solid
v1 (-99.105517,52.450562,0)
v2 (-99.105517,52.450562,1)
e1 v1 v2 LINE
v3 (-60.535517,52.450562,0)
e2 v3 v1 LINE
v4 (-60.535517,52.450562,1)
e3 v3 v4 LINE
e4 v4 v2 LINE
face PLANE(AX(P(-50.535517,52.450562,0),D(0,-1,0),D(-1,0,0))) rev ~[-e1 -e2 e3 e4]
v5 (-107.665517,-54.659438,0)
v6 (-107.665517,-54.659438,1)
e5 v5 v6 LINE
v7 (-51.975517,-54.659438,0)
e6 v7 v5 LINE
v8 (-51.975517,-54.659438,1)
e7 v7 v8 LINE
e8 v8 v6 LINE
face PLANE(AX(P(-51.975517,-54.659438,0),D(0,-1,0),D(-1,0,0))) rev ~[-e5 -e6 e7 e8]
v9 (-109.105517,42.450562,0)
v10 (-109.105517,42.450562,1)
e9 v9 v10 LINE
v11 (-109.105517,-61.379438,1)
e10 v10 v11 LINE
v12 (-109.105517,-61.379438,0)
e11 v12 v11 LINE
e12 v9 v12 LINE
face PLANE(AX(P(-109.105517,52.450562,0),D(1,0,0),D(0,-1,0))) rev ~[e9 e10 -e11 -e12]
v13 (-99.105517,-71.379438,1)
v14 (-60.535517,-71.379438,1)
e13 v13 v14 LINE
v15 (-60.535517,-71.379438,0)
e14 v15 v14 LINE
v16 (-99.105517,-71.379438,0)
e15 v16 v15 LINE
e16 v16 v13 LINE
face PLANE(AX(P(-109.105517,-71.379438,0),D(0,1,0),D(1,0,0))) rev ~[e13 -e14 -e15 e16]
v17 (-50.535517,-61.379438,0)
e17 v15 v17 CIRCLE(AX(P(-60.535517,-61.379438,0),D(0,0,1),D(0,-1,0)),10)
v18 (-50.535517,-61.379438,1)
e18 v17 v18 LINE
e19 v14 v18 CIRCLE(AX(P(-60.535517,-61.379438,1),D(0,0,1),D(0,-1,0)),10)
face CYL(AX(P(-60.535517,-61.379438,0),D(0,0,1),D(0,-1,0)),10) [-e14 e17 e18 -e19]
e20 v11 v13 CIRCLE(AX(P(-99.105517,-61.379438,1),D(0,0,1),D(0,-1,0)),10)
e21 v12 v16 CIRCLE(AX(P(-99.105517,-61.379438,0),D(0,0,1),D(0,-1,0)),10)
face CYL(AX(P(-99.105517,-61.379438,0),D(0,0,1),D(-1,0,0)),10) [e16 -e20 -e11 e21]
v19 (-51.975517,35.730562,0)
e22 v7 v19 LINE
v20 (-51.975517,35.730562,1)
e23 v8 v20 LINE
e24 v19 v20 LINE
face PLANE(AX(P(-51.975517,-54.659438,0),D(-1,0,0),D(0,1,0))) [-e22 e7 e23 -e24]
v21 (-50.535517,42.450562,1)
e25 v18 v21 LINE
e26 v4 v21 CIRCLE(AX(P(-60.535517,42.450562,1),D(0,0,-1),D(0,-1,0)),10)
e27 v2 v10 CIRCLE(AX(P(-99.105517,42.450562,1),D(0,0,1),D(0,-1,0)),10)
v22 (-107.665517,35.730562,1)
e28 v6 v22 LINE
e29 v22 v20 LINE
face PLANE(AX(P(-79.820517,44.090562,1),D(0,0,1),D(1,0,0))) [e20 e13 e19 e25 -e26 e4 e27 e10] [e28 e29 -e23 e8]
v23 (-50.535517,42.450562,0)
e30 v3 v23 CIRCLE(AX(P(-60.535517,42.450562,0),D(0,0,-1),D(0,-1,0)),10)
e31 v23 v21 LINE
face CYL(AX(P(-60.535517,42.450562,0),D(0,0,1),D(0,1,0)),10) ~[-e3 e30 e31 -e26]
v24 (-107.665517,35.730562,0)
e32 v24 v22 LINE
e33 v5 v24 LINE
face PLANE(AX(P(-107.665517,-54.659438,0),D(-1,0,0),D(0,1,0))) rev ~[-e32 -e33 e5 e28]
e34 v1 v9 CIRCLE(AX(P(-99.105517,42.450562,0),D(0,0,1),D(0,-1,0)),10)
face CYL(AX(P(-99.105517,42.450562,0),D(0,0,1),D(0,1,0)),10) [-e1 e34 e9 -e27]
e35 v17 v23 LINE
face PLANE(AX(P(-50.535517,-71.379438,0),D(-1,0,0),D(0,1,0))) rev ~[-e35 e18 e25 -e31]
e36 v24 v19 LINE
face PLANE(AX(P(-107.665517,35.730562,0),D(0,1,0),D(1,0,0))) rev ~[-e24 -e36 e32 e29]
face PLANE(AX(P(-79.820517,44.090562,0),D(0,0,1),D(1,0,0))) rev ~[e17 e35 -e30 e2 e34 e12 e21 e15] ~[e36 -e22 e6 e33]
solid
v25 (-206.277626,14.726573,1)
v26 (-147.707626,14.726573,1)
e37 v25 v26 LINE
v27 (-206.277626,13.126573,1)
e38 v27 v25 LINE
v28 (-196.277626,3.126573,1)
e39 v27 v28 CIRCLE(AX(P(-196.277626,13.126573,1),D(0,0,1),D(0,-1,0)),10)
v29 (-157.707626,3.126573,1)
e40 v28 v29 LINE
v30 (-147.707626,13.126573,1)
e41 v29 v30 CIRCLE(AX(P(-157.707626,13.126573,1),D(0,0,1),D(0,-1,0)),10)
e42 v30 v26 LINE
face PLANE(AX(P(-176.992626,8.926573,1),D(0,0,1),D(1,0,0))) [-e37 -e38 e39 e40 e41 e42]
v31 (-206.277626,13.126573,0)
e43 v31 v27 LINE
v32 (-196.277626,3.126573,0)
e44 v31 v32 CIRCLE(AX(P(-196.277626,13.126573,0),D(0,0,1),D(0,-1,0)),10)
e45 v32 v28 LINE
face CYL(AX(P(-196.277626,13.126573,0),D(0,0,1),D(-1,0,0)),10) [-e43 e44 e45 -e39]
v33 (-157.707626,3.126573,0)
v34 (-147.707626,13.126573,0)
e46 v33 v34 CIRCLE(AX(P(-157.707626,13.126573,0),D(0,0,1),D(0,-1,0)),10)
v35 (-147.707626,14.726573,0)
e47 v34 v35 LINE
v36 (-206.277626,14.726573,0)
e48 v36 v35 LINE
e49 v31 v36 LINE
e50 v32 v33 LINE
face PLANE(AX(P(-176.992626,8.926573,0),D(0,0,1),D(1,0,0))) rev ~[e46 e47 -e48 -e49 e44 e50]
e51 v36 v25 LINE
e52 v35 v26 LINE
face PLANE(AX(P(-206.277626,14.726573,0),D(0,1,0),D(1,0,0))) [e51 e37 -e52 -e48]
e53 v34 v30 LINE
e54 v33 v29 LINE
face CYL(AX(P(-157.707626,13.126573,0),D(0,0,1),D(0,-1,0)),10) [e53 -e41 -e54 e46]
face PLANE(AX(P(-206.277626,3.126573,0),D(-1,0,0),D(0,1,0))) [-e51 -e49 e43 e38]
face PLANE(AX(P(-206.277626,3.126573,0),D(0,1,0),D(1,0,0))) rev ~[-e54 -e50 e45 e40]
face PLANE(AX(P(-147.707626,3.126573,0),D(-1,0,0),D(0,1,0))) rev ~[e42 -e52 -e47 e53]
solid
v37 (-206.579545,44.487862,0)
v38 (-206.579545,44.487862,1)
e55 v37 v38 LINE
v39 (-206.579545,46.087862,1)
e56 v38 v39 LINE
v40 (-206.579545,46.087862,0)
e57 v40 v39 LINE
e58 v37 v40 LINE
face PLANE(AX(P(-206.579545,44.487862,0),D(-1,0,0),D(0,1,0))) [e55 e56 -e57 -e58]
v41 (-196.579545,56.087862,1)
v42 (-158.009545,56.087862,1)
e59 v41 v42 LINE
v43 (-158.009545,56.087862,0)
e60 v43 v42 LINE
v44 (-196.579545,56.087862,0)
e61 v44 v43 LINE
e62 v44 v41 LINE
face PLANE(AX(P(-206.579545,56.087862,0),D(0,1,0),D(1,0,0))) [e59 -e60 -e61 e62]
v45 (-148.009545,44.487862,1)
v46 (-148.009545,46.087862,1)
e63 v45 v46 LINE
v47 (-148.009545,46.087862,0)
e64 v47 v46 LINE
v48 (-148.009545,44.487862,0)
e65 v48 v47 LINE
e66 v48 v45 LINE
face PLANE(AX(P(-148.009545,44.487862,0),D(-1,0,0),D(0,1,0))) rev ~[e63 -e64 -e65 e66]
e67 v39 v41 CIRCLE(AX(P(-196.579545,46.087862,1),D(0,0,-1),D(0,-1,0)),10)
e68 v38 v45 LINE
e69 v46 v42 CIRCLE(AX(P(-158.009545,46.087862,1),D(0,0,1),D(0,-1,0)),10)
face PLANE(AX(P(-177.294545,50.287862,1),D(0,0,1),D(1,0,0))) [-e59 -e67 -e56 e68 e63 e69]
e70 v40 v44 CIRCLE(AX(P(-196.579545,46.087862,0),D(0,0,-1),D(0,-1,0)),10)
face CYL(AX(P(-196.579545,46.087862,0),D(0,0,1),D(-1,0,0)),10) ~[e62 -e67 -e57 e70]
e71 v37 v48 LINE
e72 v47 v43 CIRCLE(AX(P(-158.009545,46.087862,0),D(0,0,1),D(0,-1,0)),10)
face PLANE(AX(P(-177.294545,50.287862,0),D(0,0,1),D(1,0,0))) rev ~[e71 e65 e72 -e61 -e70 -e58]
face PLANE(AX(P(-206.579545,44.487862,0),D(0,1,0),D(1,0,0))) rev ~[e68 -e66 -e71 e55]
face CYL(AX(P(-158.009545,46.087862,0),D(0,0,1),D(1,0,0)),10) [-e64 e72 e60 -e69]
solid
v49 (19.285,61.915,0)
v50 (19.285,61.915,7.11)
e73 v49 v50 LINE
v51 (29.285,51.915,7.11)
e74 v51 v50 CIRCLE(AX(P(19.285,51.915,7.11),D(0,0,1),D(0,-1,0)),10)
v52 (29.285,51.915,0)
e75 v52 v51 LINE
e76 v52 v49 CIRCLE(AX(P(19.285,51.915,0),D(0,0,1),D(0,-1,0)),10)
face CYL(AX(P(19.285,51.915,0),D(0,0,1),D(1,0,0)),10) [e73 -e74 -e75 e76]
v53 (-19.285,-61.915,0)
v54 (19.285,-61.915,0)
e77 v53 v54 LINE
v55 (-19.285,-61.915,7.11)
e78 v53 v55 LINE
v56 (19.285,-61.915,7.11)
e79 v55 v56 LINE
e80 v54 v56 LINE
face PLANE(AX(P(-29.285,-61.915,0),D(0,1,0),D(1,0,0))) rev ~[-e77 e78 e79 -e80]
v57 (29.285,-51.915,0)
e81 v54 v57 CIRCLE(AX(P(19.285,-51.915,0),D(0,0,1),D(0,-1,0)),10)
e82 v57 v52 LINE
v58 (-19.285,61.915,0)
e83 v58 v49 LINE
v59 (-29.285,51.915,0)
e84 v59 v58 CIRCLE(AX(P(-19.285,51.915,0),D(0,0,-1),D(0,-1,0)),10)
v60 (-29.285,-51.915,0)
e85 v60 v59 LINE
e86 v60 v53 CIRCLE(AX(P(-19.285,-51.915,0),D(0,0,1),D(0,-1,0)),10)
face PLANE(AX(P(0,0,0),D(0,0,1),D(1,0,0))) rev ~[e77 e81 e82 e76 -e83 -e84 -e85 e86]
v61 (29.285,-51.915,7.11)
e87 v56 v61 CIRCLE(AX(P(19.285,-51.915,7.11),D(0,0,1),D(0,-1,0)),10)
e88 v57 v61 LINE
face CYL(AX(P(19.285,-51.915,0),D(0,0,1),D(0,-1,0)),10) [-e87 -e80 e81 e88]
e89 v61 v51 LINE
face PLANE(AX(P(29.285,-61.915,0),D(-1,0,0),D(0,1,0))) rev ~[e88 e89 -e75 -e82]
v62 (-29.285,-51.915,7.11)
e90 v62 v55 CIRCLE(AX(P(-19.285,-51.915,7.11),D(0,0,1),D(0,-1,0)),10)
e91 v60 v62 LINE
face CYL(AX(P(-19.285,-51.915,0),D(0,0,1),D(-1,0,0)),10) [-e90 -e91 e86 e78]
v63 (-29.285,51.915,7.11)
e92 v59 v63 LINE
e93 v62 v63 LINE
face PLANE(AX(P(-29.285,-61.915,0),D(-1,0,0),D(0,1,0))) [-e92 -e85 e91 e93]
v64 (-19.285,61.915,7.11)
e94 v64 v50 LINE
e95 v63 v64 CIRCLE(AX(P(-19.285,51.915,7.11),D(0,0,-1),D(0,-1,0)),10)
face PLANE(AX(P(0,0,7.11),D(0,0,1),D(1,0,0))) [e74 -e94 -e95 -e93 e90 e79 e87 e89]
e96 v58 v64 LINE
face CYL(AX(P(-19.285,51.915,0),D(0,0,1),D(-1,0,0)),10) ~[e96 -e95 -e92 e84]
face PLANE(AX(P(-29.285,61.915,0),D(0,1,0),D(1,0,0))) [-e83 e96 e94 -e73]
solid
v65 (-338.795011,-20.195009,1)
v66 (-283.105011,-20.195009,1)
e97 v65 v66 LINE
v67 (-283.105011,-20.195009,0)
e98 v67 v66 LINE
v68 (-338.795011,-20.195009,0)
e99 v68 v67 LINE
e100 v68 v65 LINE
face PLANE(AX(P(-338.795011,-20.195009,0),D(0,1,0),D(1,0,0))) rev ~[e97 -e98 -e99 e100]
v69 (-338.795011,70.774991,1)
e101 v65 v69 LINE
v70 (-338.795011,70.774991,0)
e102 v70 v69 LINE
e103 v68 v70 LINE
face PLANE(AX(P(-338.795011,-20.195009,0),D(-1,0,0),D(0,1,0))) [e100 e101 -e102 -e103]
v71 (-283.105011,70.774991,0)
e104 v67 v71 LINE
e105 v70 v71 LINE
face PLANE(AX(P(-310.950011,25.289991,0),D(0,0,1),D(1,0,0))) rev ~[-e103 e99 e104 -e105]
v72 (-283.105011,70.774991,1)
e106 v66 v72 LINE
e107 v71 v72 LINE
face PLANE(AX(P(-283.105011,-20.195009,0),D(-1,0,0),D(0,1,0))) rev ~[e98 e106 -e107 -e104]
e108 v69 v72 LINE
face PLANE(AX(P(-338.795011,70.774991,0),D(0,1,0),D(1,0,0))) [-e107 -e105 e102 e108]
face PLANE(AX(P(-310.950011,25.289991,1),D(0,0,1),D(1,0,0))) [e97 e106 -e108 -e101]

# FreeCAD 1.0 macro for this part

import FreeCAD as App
import Part
import Sketcher

V = App.Vector


def edges_at(feature, points):
    """Names of the edges that pass closest to the given points."""
    edges = feature.Shape.Edges
    near = lambda p: min(range(len(edges)), key=lambda i: edges[i].distToShape(Part.Vertex(*p))[0])
    return sorted({f"Edge{near(p) + 1}" for p in points})


def add_polygon(sketch, points):
    """Adds a closed chain of lines whose ends are joined by coincident constraints."""
    first, n = sketch.GeometryCount, len(points)
    for a, b in zip(points, points[1:] + points[:1]):
        sketch.addGeometry(Part.LineSegment(App.Vector(*a, 0), App.Vector(*b, 0)), False)
    for i in range(n):
        sketch.addConstraint(Sketcher.Constraint("Coincident", first + i, 2, first + (i + 1) % n, 1))

doc = App.newDocument("Part")
body = doc.addObject("PartDesign::Body", "Body")

sketch1 = doc.addObject("Sketcher::SketchObject", "Sketch")
body.addObject(sketch1)
sketch1.AttachmentSupport = (doc.XY_Plane, [""])
sketch1.MapMode = "FlatFace"
add_polygon(sketch1, [(-29, 62), (-29, -62), (29, -62), (29, 62)])
sketch1.addConstraint([
    Sketcher.Constraint("Vertical", 0),
    Sketcher.Constraint("Horizontal", 1),
    Sketcher.Constraint("Vertical", 2),
    Sketcher.Constraint("Horizontal", 3),
    Sketcher.Constraint("Symmetric", 0, 2, 2, 2, -1, 1),
    Sketcher.Constraint("DistanceX", 1, 1, 1, 2, 58.57),
    Sketcher.Constraint("DistanceY", 0, 2, 0, 1, 123.83),
])
pad1 = doc.addObject("PartDesign::Pad", "Pad")
body.addObject(pad1)
pad1.Profile = sketch1
pad1.Length = 7.11
doc.recompute()

fillet = doc.addObject("PartDesign::Fillet", "Fillet")
body.addObject(fillet)
fillet.Base = (pad1, edges_at(pad1, [
    (29.285, -61.915, 3.555),
    (-29.285, -61.915, 3.555),
    (29.285, 61.915, 3.555),
    (-29.285, 61.915, 3.555),
]))
fillet.Radius = 10
body2 = doc.addObject("PartDesign::Body", "Body001")

sketch2 = doc.addObject("Sketcher::SketchObject", "Sketch001")
body2.addObject(sketch2)
sketch2.AttachmentSupport = (doc.getObject("XY_Plane001"), [""])
sketch2.MapMode = "FlatFace"
add_polygon(sketch2, [(-51, 52), (-109, 52), (-109, -71), (-51, -71)])
add_polygon(sketch2, [(-108, -55), (-108, 36), (-52, 36), (-52, -55)])
sketch2.addConstraint([
    Sketcher.Constraint("Horizontal", 0),
    Sketcher.Constraint("Vertical", 1),
    Sketcher.Constraint("Horizontal", 2),
    Sketcher.Constraint("Vertical", 3),
    Sketcher.Constraint("Vertical", 4),
    Sketcher.Constraint("Horizontal", 5),
    Sketcher.Constraint("Vertical", 6),
    Sketcher.Constraint("Horizontal", 7),
    Sketcher.Constraint("DistanceX", 0, 2, 0, 1, 58.57),
    Sketcher.Constraint("DistanceX", 5, 1, 5, 2, 55.69),
    Sketcher.Constraint("DistanceY", 1, 2, 1, 1, 123.83),
    Sketcher.Constraint("DistanceY", 4, 1, 4, 2, 90.39),
    Sketcher.Constraint("DistanceX", 0, 2, 4, 2, 1.44),
    Sketcher.Constraint("DistanceY", 4, 2, 0, 2, 16.72),
    Sketcher.Constraint("DistanceY", -1, 1, 0, 2, 52.450562),
    Sketcher.Constraint("DistanceX", 0, 2, -1, 1, 109.105517),
])
pad2 = doc.addObject("PartDesign::Pad", "Pad001")
body2.addObject(pad2)
pad2.Profile = sketch2
pad2.Length = 1
doc.recompute()

fillet2 = doc.addObject("PartDesign::Fillet", "Fillet001")
body2.addObject(fillet2)
fillet2.Base = (pad2, edges_at(pad2, [
    (-109.106, 52.451, 0.5),
    (-109.106, -71.379, 0.5),
    (-50.536, -71.379, 0.5),
    (-50.536, 52.451, 0.5),
]))
fillet2.Radius = 10
body3 = doc.addObject("PartDesign::Body", "Body002")
body3.AllowCompound = True

sketch3 = doc.addObject("Sketcher::SketchObject", "Sketch002")
body3.addObject(sketch3)
sketch3.AttachmentSupport = (doc.getObject("XY_Plane002"), [""])
sketch3.MapMode = "FlatFace"
add_polygon(sketch3, [(-207, 56), (-207, 44), (-148, 44), (-148, 56)])
add_polygon(sketch3, [(-206, 15), (-206, 3), (-148, 3), (-148, 15)])
sketch3.addConstraint([
    Sketcher.Constraint("Vertical", 0),
    Sketcher.Constraint("Horizontal", 1),
    Sketcher.Constraint("Vertical", 2),
    Sketcher.Constraint("Horizontal", 3),
    Sketcher.Constraint("Vertical", 4),
    Sketcher.Constraint("Horizontal", 5),
    Sketcher.Constraint("Vertical", 6),
    Sketcher.Constraint("Horizontal", 7),
    Sketcher.Constraint("Equal", 3, 5),
    Sketcher.Constraint("Equal", 2, 4),
    Sketcher.Constraint("DistanceY", 0, 2, 0, 1, 11.6),
    Sketcher.Constraint("DistanceX", 1, 1, 1, 2, 58.57),
    Sketcher.Constraint("DistanceX", 0, 2, 4, 2, 0.301919),
    Sketcher.Constraint("DistanceY", 4, 2, 0, 2, 41.361289),
    Sketcher.Constraint("DistanceX", 0, 2, -1, 1, 206.579545),
    Sketcher.Constraint("DistanceY", -1, 1, 0, 2, 44.487862),
])
pad3 = doc.addObject("PartDesign::Pad", "Pad002")
body3.addObject(pad3)
pad3.Profile = sketch3
pad3.Length = 1
doc.recompute()

fillet3 = doc.addObject("PartDesign::Fillet", "Fillet002")
body3.addObject(fillet3)
fillet3.Base = (pad3, edges_at(pad3, [
    (-148.01, 56.088, 0.5),
    (-206.58, 56.088, 0.5),
    (-206.278, 3.127, 0.5),
    (-147.708, 3.127, 0.5),
]))
fillet3.Radius = 10
body4 = doc.addObject("PartDesign::Body", "Body003")

sketch4 = doc.addObject("Sketcher::SketchObject", "Sketch003")
body4.addObject(sketch4)
sketch4.AttachmentSupport = (doc.getObject("XY_Plane003"), [""])
sketch4.MapMode = "FlatFace"
add_polygon(sketch4, [(-339, 71), (-339, -20), (-283, -20), (-283, 71)])
sketch4.addConstraint([
    Sketcher.Constraint("Vertical", 0),
    Sketcher.Constraint("Horizontal", 1),
    Sketcher.Constraint("Vertical", 2),
    Sketcher.Constraint("Horizontal", 3),
    Sketcher.Constraint("DistanceX", 1, 1, 1, 2, 55.69),
    Sketcher.Constraint("DistanceY", 0, 2, 0, 1, 90.97),
    Sketcher.Constraint("DistanceX", 0, 2, -1, 1, 338.795011),
    Sketcher.Constraint("DistanceY", 0, 2, -1, 1, 20.195009),
])
pad4 = doc.addObject("PartDesign::Pad", "Pad003")
body4.addObject(pad4)
pad4.Profile = sketch4
pad4.Length = 1

doc.recompute()
